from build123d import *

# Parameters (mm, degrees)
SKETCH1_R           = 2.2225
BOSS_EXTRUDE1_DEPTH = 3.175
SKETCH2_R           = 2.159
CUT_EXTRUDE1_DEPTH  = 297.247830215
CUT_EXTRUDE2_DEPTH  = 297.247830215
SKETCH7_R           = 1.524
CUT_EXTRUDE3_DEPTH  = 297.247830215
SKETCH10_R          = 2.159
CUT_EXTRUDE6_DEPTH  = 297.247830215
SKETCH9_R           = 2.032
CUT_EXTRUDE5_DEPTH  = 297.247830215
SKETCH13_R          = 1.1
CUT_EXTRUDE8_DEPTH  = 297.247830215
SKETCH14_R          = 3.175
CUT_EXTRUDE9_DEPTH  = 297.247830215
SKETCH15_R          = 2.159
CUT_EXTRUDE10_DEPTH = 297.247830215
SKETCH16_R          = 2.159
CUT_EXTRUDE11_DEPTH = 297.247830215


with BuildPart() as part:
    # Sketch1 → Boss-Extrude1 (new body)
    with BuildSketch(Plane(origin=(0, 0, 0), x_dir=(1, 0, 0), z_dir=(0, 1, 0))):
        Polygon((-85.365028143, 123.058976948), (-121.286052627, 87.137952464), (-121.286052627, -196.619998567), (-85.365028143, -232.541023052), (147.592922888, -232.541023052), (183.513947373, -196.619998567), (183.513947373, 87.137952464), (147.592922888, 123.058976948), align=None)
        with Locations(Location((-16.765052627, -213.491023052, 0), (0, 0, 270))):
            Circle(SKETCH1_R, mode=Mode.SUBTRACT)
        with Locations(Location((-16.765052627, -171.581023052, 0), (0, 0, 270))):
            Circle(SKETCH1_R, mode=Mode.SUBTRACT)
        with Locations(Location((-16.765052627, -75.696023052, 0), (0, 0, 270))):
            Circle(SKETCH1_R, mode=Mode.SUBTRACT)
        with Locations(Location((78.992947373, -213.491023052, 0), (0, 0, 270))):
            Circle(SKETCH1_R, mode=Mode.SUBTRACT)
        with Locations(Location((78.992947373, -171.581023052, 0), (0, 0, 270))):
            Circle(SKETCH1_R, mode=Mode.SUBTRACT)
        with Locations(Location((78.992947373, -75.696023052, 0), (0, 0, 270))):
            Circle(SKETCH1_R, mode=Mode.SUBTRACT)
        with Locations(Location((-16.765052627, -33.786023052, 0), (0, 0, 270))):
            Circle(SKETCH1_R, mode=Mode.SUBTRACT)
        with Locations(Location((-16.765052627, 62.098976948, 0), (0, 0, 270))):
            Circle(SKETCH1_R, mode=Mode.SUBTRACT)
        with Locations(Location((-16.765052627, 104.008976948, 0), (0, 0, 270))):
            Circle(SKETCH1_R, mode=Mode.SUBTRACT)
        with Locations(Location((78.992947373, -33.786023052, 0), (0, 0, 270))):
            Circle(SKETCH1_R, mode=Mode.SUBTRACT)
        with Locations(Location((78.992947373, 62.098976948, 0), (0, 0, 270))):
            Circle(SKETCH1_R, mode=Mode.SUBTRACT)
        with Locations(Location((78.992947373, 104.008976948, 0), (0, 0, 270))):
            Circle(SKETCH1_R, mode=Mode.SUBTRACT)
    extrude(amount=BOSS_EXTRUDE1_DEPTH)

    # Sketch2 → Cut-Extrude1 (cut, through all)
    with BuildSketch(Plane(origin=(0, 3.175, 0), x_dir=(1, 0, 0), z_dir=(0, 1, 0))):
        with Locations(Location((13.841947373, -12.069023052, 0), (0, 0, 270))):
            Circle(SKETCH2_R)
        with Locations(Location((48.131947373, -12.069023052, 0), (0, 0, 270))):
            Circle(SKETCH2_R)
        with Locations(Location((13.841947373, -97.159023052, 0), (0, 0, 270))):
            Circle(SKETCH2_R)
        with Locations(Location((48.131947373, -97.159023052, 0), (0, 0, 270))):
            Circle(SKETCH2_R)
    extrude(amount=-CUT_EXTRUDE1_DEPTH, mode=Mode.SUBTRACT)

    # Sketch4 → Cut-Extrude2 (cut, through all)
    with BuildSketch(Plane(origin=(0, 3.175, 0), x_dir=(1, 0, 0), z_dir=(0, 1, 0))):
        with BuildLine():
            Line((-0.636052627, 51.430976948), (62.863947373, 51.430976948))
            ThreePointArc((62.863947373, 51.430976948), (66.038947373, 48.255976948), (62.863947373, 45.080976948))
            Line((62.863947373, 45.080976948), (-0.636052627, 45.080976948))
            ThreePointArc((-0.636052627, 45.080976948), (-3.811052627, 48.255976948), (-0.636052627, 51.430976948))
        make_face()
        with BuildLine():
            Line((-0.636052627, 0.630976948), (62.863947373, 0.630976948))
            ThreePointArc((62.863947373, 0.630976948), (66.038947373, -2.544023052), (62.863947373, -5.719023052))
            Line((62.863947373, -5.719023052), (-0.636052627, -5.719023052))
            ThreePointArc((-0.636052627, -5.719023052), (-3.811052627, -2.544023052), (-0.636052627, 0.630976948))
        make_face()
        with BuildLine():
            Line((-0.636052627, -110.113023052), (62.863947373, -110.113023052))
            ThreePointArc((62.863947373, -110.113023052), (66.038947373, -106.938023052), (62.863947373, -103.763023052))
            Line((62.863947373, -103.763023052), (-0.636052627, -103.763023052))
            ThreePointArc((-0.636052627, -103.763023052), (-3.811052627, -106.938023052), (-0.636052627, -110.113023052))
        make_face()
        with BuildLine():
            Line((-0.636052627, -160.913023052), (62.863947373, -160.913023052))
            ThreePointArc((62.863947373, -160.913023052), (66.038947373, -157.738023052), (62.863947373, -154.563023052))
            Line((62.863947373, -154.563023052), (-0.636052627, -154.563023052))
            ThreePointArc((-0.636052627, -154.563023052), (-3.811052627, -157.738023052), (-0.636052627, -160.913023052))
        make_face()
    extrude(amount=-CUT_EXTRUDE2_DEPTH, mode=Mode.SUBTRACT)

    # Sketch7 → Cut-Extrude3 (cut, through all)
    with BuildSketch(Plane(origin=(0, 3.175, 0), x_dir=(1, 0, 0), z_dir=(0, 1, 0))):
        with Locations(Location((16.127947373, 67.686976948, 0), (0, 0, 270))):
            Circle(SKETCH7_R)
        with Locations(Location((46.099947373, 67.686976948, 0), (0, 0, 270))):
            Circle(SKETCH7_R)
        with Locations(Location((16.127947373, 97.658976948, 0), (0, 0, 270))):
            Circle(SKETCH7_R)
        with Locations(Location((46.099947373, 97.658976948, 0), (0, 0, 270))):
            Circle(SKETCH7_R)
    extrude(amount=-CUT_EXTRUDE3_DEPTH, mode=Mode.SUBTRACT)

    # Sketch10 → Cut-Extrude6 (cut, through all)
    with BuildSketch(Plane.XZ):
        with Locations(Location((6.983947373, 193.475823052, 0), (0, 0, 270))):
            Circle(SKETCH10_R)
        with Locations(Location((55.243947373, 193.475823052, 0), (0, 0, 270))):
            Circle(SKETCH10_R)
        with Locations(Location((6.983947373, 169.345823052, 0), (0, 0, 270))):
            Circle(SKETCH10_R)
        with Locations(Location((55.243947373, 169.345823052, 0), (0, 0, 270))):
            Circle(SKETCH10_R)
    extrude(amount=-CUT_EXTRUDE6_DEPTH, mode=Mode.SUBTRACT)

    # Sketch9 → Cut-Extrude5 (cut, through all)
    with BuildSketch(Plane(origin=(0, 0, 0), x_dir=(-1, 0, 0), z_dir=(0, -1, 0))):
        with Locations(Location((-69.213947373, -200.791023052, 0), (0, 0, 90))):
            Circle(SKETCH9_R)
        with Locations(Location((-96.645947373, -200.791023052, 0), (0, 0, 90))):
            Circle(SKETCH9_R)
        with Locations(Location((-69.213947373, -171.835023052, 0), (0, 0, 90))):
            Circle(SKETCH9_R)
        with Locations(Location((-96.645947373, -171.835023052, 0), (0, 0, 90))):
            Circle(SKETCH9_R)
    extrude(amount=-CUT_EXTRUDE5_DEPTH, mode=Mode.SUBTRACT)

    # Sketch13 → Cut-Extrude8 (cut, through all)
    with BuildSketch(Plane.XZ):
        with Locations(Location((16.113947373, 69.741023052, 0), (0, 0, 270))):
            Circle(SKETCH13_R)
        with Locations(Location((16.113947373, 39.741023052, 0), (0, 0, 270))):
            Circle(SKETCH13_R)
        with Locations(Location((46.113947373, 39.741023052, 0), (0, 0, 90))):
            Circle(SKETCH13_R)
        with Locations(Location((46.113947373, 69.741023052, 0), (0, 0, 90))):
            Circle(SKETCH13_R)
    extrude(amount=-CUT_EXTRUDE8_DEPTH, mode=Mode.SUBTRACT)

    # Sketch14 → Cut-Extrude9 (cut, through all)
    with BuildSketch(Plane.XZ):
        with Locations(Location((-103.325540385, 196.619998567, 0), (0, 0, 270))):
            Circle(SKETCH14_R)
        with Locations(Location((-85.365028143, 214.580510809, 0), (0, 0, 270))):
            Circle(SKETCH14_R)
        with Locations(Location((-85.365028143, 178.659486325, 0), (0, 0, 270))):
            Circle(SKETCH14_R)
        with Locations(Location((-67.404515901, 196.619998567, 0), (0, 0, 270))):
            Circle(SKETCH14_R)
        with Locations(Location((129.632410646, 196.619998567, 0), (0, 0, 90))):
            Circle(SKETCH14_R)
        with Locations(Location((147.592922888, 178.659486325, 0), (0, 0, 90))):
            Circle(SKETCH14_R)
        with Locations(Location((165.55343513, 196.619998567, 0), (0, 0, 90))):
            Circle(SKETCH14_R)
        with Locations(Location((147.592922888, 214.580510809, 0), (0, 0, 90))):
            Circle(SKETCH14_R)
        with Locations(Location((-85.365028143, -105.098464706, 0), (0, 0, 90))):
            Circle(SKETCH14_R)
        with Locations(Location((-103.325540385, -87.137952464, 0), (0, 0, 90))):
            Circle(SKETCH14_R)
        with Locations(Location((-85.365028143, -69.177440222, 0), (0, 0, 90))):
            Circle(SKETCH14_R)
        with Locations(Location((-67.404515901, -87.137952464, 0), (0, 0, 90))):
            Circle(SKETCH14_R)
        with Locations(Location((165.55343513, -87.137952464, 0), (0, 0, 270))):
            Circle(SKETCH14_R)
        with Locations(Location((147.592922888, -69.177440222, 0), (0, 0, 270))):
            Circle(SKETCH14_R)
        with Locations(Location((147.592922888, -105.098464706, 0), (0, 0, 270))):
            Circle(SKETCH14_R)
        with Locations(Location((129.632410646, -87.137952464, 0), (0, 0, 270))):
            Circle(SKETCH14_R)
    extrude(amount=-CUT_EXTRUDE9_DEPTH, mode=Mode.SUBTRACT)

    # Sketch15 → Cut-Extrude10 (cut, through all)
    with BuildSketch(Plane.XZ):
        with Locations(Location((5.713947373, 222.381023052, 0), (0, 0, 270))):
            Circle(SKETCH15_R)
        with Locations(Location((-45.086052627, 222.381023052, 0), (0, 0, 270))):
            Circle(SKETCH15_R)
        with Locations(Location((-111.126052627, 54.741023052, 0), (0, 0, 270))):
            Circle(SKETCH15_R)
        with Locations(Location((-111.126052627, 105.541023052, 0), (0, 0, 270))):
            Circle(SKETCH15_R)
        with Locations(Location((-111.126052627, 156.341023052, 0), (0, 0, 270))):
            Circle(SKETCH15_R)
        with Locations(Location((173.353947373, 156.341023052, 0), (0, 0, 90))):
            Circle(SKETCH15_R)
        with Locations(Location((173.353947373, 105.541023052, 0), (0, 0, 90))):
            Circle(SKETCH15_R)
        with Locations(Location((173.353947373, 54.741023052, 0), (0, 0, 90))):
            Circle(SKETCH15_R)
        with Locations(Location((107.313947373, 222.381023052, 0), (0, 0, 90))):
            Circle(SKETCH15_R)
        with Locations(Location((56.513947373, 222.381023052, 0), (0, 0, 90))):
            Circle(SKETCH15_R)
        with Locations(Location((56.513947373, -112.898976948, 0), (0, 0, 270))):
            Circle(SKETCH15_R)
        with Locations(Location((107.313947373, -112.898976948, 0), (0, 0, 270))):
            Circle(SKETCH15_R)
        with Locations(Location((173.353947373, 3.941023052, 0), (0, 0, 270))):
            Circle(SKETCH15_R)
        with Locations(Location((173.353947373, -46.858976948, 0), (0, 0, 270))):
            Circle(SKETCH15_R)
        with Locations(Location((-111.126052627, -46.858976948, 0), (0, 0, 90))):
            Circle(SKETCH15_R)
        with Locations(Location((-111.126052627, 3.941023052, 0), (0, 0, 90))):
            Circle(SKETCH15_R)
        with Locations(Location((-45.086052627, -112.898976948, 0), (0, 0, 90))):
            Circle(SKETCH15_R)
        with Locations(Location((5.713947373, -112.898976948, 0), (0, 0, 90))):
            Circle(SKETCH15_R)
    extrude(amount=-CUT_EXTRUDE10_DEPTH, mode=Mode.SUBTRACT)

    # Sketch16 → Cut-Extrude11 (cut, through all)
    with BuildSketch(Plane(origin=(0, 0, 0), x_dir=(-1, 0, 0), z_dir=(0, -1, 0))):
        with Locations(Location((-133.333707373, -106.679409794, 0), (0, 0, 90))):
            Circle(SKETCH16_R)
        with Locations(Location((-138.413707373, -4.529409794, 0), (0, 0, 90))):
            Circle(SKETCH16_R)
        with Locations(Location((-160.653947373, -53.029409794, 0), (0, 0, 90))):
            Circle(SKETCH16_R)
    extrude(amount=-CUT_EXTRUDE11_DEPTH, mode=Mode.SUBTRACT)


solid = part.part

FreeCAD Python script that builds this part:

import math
import FreeCAD as App
import Part
import Sketcher
Q = App.Units.Quantity

doc = App.newDocument("Part")
body = doc.addObject("PartDesign::Body", "Body")

sketch1 = body.newObject("Sketcher::SketchObject", "Sketch")
sketch1.AttachmentSupport = (doc.getObject("XZ_Plane"), [""])
sketch1.MapMode = "FlatFace"
sketch1.addGeometry(Part.LineSegment(App.Vector(-85.365028, -123.058977, 0), App.Vector(-121.286053, -87.137952, 0)), False)
sketch1.addGeometry(Part.LineSegment(App.Vector(-121.286053, -87.137952, 0), App.Vector(-121.286053, 196.619999, 0)), False)
sketch1.addGeometry(Part.LineSegment(App.Vector(-121.286053, 196.619999, 0), App.Vector(-85.365028, 232.541023, 0)), False)
sketch1.addGeometry(Part.LineSegment(App.Vector(-85.365028, 232.541023, 0), App.Vector(147.592923, 232.541023, 0)), False)
sketch1.addGeometry(Part.LineSegment(App.Vector(147.592923, 232.541023, 0), App.Vector(183.513947, 196.619999, 0)), False)
sketch1.addGeometry(Part.LineSegment(App.Vector(183.513947, 196.619999, 0), App.Vector(183.513947, -87.137952, 0)), False)
sketch1.addGeometry(Part.LineSegment(App.Vector(183.513947, -87.137952, 0), App.Vector(147.592923, -123.058977, 0)), False)
sketch1.addGeometry(Part.LineSegment(App.Vector(147.592923, -123.058977, 0), App.Vector(-85.365028, -123.058977, 0)), False)
sketch1.addGeometry(Part.Circle(App.Vector(-16.765053, 213.491023, 0), App.Vector(0, 0, 1), 2.2225), False)
sketch1.addGeometry(Part.Circle(App.Vector(-16.765053, 171.581023, 0), App.Vector(0, 0, 1), 2.2225), False)
sketch1.addGeometry(Part.Circle(App.Vector(-16.765053, 75.696023, 0), App.Vector(0, 0, 1), 2.2225), False)
sketch1.addGeometry(Part.Circle(App.Vector(78.992947, 213.491023, 0), App.Vector(0, 0, 1), 2.2225), False)
sketch1.addGeometry(Part.Circle(App.Vector(78.992947, 171.581023, 0), App.Vector(0, 0, 1), 2.2225), False)
sketch1.addGeometry(Part.Circle(App.Vector(78.992947, 75.696023, 0), App.Vector(0, 0, 1), 2.2225), False)
sketch1.addGeometry(Part.Circle(App.Vector(-16.765053, 33.786023, 0), App.Vector(0, 0, 1), 2.2225), False)
sketch1.addGeometry(Part.Circle(App.Vector(-16.765053, -62.098977, 0), App.Vector(0, 0, 1), 2.2225), False)
sketch1.addGeometry(Part.Circle(App.Vector(-16.765053, -104.008977, 0), App.Vector(0, 0, 1), 2.2225), False)
sketch1.addGeometry(Part.Circle(App.Vector(78.992947, 33.786023, 0), App.Vector(0, 0, 1), 2.2225), False)
sketch1.addGeometry(Part.Circle(App.Vector(78.992947, -62.098977, 0), App.Vector(0, 0, 1), 2.2225), False)
sketch1.addGeometry(Part.Circle(App.Vector(78.992947, -104.008977, 0), App.Vector(0, 0, 1), 2.2225), False)
sketch1.addConstraint(Sketcher.Constraint("Coincident", 0, 2, 1, 1))
sketch1.addConstraint(Sketcher.Constraint("Coincident", 1, 2, 2, 1))
sketch1.addConstraint(Sketcher.Constraint("Coincident", 2, 2, 3, 1))
sketch1.addConstraint(Sketcher.Constraint("Coincident", 3, 2, 4, 1))
sketch1.addConstraint(Sketcher.Constraint("Coincident", 4, 2, 5, 1))
sketch1.addConstraint(Sketcher.Constraint("Coincident", 5, 2, 6, 1))
sketch1.addConstraint(Sketcher.Constraint("Coincident", 6, 2, 7, 1))
sketch1.addConstraint(Sketcher.Constraint("Coincident", 7, 2, 0, 1))
sketch1.addConstraint(Sketcher.Constraint("Vertical", 1))
sketch1.addConstraint(Sketcher.Constraint("Horizontal", 3))
sketch1.addConstraint(Sketcher.Constraint("Vertical", 5))
sketch1.addConstraint(Sketcher.Constraint("Horizontal", 7))
sketch1.addConstraint(Sketcher.Constraint("Equal", 8, 9))
sketch1.addConstraint(Sketcher.Constraint("Equal", 9, 10))
sketch1.addConstraint(Sketcher.Constraint("Equal", 10, 11))
sketch1.addConstraint(Sketcher.Constraint("Equal", 11, 12))
sketch1.addConstraint(Sketcher.Constraint("Equal", 12, 13))
sketch1.addConstraint(Sketcher.Constraint("Equal", 13, 14))
sketch1.addConstraint(Sketcher.Constraint("Equal", 14, 15))
sketch1.addConstraint(Sketcher.Constraint("Equal", 15, 16))
sketch1.addConstraint(Sketcher.Constraint("Equal", 16, 17))
sketch1.addConstraint(Sketcher.Constraint("Equal", 17, 18))
sketch1.addConstraint(Sketcher.Constraint("Equal", 18, 19))
sketch1.addConstraint(Sketcher.Constraint("Perpendicular", 0, 2))
sketch1.addConstraint(Sketcher.Constraint("Perpendicular", 2, 4))
sketch1.addConstraint(Sketcher.Constraint("Perpendicular", 4, 6))
sketch1.addConstraint(Sketcher.Constraint("Horizontal", 8, 3, 11, 3))
sketch1.addConstraint(Sketcher.Constraint("Horizontal", 9, 3, 12, 3))
sketch1.addConstraint(Sketcher.Constraint("Horizontal", 10, 3, 13, 3))
sketch1.addConstraint(Sketcher.Constraint("Horizontal", 14, 3, 17, 3))
sketch1.addConstraint(Sketcher.Constraint("Horizontal", 15, 3, 18, 3))
sketch1.addConstraint(Sketcher.Constraint("Horizontal", 16, 3, 19, 3))
sketch1.addConstraint(Sketcher.Constraint("Horizontal", 1, 2, 4, 2))
sketch1.addConstraint(Sketcher.Constraint("Horizontal", 0, 2, 5, 2))
sketch1.addConstraint(Sketcher.Constraint("Vertical", 8, 3, 9, 3))
sketch1.addConstraint(Sketcher.Constraint("Vertical", 9, 3, 10, 3))
sketch1.addConstraint(Sketcher.Constraint("Vertical", 11, 3, 12, 3))
sketch1.addConstraint(Sketcher.Constraint("Vertical", 12, 3, 13, 3))
sketch1.addConstraint(Sketcher.Constraint("Vertical", 10, 3, 14, 3))
sketch1.addConstraint(Sketcher.Constraint("Vertical", 14, 3, 15, 3))
sketch1.addConstraint(Sketcher.Constraint("Vertical", 15, 3, 16, 3))
sketch1.addConstraint(Sketcher.Constraint("Vertical", 13, 3, 17, 3))
sketch1.addConstraint(Sketcher.Constraint("Vertical", 17, 3, 18, 3))
sketch1.addConstraint(Sketcher.Constraint("Vertical", 18, 3, 19, 3))
sketch1.addConstraint(Sketcher.Constraint("Vertical", 3, 2, 6, 2))
sketch1.addConstraint(Sketcher.Constraint("Vertical", 2, 2, 7, 2))
sketch1.addConstraint(Sketcher.Constraint("Distance", 0, Q("2 in")))
sketch1.addConstraint(Sketcher.Constraint("Diameter", 8, Q("0.175 in")))
sketch1.addConstraint(Sketcher.Constraint("DistanceY", 15, 3, 9, 3, Q("9.2 in")))
sketch1.addConstraint(Sketcher.Constraint("DistanceY", 9, 3, 2, 2, Q("2.4 in")))
sketch1.addConstraint(Sketcher.Constraint("DistanceY", 6, 2, 18, 3, Q("2.4 in")))
sketch1.addConstraint(Sketcher.Constraint("DistanceY", 9, 3, 8, 3, Q("1.65 in")))
sketch1.addConstraint(Sketcher.Constraint("DistanceX", 8, 3, 11, 3, Q("3.77 in")))
sketch1.addConstraint(Sketcher.Constraint("DistanceY", 14, 3, 10, 3, Q("1.65 in")))
sketch1.addConstraint(Sketcher.Constraint("DistanceY", 16, 3, 15, 3, Q("1.65 in")))
sketch1.addConstraint(Sketcher.Constraint("DistanceY", 10, 3, 9, 3, Q("3.775 in")))
sketch1.addConstraint(Sketcher.Constraint("DistanceX", 0, 2, 16, 3, Q("4.115 in")))
sketch1.addConstraint(Sketcher.Constraint("DistanceX", 11, 3, 4, 2, Q("4.115 in")))
sketch1.addConstraint(Sketcher.Constraint("DistanceY", -1, 1, 1, 2, Q("196.619999 mm")))
sketch1.addConstraint(Sketcher.Constraint("DistanceX", 2, 2, -1, 1, Q("85.365028 mm")))
pad1 = body.newObject("PartDesign::Pad", "Pad")
pad1.Profile = sketch1
pad1.Length = Q("0.125 in")
pad1.Reversed = True

sketch2 = body.newObject("Sketcher::SketchObject", "Sketch001")
sketch2.AttachmentSupport = (doc.getObject("XZ_Plane"), [""])
sketch2.MapMode = "FlatFace"
sketch2.AttachmentOffset = App.Placement(App.Vector(0, 0, -0.125 * 25.4), App.Rotation())
sketch2.addGeometry(Part.Circle(App.Vector(13.841947, 12.069023, 0), App.Vector(0, 0, 1), 2.159), False)
sketch2.addGeometry(Part.Circle(App.Vector(48.131947, 12.069023, 0), App.Vector(0, 0, 1), 2.159), False)
sketch2.addGeometry(Part.Circle(App.Vector(13.841947, 97.159023, 0), App.Vector(0, 0, 1), 2.159), False)
sketch2.addGeometry(Part.Circle(App.Vector(48.131947, 97.159023, 0), App.Vector(0, 0, 1), 2.159), False)
sketch2.addConstraint(Sketcher.Constraint("Equal", 0, 1))
sketch2.addConstraint(Sketcher.Constraint("Equal", 1, 2))
sketch2.addConstraint(Sketcher.Constraint("Equal", 2, 3))
sketch2.addConstraint(Sketcher.Constraint("Horizontal", 0, 3, 1, 3))
sketch2.addConstraint(Sketcher.Constraint("Horizontal", 2, 3, 3, 3))
sketch2.addConstraint(Sketcher.Constraint("Vertical", 0, 3, 2, 3))
sketch2.addConstraint(Sketcher.Constraint("Vertical", 1, 3, 3, 3))
sketch2.addConstraint(Sketcher.Constraint("Diameter", 0, Q("0.17 in")))
sketch2.addConstraint(Sketcher.Constraint("DistanceX", 0, 3, 1, 3, Q("1.35 in")))
sketch2.addConstraint(Sketcher.Constraint("DistanceY", 0, 3, 2, 3, Q("3.35 in")))
sketch2.addConstraint(Sketcher.Constraint("DistanceX", -1, 1, 0, 3, Q("13.841947 mm")))
sketch2.addConstraint(Sketcher.Constraint("DistanceY", -1, 1, 0, 3, Q("12.069023 mm")))
pocket1 = body.newObject("PartDesign::Pocket", "Pocket")
pocket1.Profile = sketch2
pocket1.Type = "ThroughAll"
pocket1.Reversed = True

sketch3 = body.newObject("Sketcher::SketchObject", "Sketch002")
sketch3.AttachmentSupport = (doc.getObject("XZ_Plane"), [""])
sketch3.MapMode = "FlatFace"
sketch3.AttachmentOffset = App.Placement(App.Vector(0, 0, -0.125 * 25.4), App.Rotation())
sketch3.addGeometry(Part.LineSegment(App.Vector(62.863947, -51.430977, 0), App.Vector(-0.636053, -51.430977, 0)), False)
sketch3.addGeometry(Part.ArcOfCircle(Part.Circle(App.Vector(-0.636053, -48.255977, 0), App.Vector(0, 0, 1), 3.175), math.radians(90), math.radians(270)), False)
sketch3.addGeometry(Part.LineSegment(App.Vector(-0.636053, -45.080977, 0), App.Vector(62.863947, -45.080977, 0)), False)
sketch3.addGeometry(Part.ArcOfCircle(Part.Circle(App.Vector(62.863947, -48.255977, 0), App.Vector(0, 0, 1), 3.175), math.radians(-90), math.radians(90)), False)
sketch3.addGeometry(Part.LineSegment(App.Vector(62.863947, -0.630977, 0), App.Vector(-0.636053, -0.630977, 0)), False)
sketch3.addGeometry(Part.ArcOfCircle(Part.Circle(App.Vector(-0.636053, 2.544023, 0), App.Vector(0, 0, 1), 3.175), math.radians(90), math.radians(270)), False)
sketch3.addGeometry(Part.LineSegment(App.Vector(-0.636053, 5.719023, 0), App.Vector(62.863947, 5.719023, 0)), False)
sketch3.addGeometry(Part.ArcOfCircle(Part.Circle(App.Vector(62.863947, 2.544023, 0), App.Vector(0, 0, 1), 3.175), math.radians(-90), math.radians(90)), False)
sketch3.addGeometry(Part.LineSegment(App.Vector(-0.636053, 110.113023, 0), App.Vector(62.863947, 110.113023, 0)), False)
sketch3.addGeometry(Part.ArcOfCircle(Part.Circle(App.Vector(62.863947, 106.938023, 0), App.Vector(0, 0, 1), 3.175), math.radians(-90), math.radians(90)), False)
sketch3.addGeometry(Part.LineSegment(App.Vector(62.863947, 103.763023, 0), App.Vector(-0.636053, 103.763023, 0)), False)
sketch3.addGeometry(Part.ArcOfCircle(Part.Circle(App.Vector(-0.636053, 106.938023, 0), App.Vector(0, 0, 1), 3.175), math.radians(90), math.radians(270)), False)
sketch3.addGeometry(Part.LineSegment(App.Vector(-0.636053, 160.913023, 0), App.Vector(62.863947, 160.913023, 0)), False)
sketch3.addGeometry(Part.ArcOfCircle(Part.Circle(App.Vector(62.863947, 157.738023, 0), App.Vector(0, 0, 1), 3.175), math.radians(-90), math.radians(90)), False)
sketch3.addGeometry(Part.LineSegment(App.Vector(62.863947, 154.563023, 0), App.Vector(-0.636053, 154.563023, 0)), False)
sketch3.addGeometry(Part.ArcOfCircle(Part.Circle(App.Vector(-0.636053, 157.738023, 0), App.Vector(0, 0, 1), 3.175), math.radians(90), math.radians(270)), False)
sketch3.addConstraint(Sketcher.Constraint("Tangent", 0, 2, 1, 2))
sketch3.addConstraint(Sketcher.Constraint("Tangent", 1, 1, 2, 1))
sketch3.addConstraint(Sketcher.Constraint("Tangent", 2, 2, 3, 2))
sketch3.addConstraint(Sketcher.Constraint("Tangent", 3, 1, 0, 1))
sketch3.addConstraint(Sketcher.Constraint("Tangent", 4, 2, 5, 2))
sketch3.addConstraint(Sketcher.Constraint("Tangent", 5, 1, 6, 1))
sketch3.addConstraint(Sketcher.Constraint("Tangent", 6, 2, 7, 2))
sketch3.addConstraint(Sketcher.Constraint("Tangent", 7, 1, 4, 1))
sketch3.addConstraint(Sketcher.Constraint("Tangent", 8, 2, 9, 2))
sketch3.addConstraint(Sketcher.Constraint("Tangent", 9, 1, 10, 1))
sketch3.addConstraint(Sketcher.Constraint("Tangent", 10, 2, 11, 2))
sketch3.addConstraint(Sketcher.Constraint("Tangent", 11, 1, 8, 1))
sketch3.addConstraint(Sketcher.Constraint("Tangent", 12, 2, 13, 2))
sketch3.addConstraint(Sketcher.Constraint("Tangent", 13, 1, 14, 1))
sketch3.addConstraint(Sketcher.Constraint("Tangent", 14, 2, 15, 2))
sketch3.addConstraint(Sketcher.Constraint("Tangent", 15, 1, 12, 1))
sketch3.addConstraint(Sketcher.Constraint("Horizontal", 0))
sketch3.addConstraint(Sketcher.Constraint("Horizontal", 2))
sketch3.addConstraint(Sketcher.Constraint("Horizontal", 4))
sketch3.addConstraint(Sketcher.Constraint("Horizontal", 6))
sketch3.addConstraint(Sketcher.Constraint("Horizontal", 8))
sketch3.addConstraint(Sketcher.Constraint("Horizontal", 10))
sketch3.addConstraint(Sketcher.Constraint("Horizontal", 12))
sketch3.addConstraint(Sketcher.Constraint("Horizontal", 14))
sketch3.addConstraint(Sketcher.Constraint("Equal", 3, 5))
sketch3.addConstraint(Sketcher.Constraint("Equal", 7, 9))
sketch3.addConstraint(Sketcher.Constraint("Equal", 11, 13))
sketch3.addConstraint(Sketcher.Constraint("Vertical", 1, 3, 5, 3))
sketch3.addConstraint(Sketcher.Constraint("Vertical", 3, 3, 7, 3))
sketch3.addConstraint(Sketcher.Constraint("Vertical", 7, 3, 9, 3))
sketch3.addConstraint(Sketcher.Constraint("Vertical", 5, 3, 11, 3))
sketch3.addConstraint(Sketcher.Constraint("Vertical", 9, 3, 13, 3))
sketch3.addConstraint(Sketcher.Constraint("Vertical", 11, 3, 15, 3))
sketch3.addConstraint(Sketcher.Constraint("DistanceX", 0, 2, 0, 1, Q("2.5 in")))
sketch3.addConstraint(Sketcher.Constraint("Radius", 1, Q("0.125 in")))
sketch3.addConstraint(Sketcher.Constraint("DistanceY", 1, 3, 5, 3, Q("2 in")))
sketch3.addConstraint(Sketcher.Constraint("DistanceY", 9, 3, 13, 3, Q("2 in")))
sketch3.addConstraint(Sketcher.Constraint("DistanceY", 7, 3, 9, 3, Q("4.11 in")))
sketch3.addConstraint(Sketcher.Constraint("DistanceX", 1, 3, -1, 1, Q("0.636053 mm")))
sketch3.addConstraint(Sketcher.Constraint("DistanceY", 1, 3, -1, 1, Q("48.255977 mm")))
pocket2 = body.newObject("PartDesign::Pocket", "Pocket001")
pocket2.Profile = sketch3
pocket2.Type = "ThroughAll"
pocket2.Reversed = True

sketch4 = body.newObject("Sketcher::SketchObject", "Sketch003")
sketch4.AttachmentSupport = (doc.getObject("XZ_Plane"), [""])
sketch4.MapMode = "FlatFace"
sketch4.AttachmentOffset = App.Placement(App.Vector(0, 0, -0.125 * 25.4), App.Rotation())
sketch4.addGeometry(Part.Circle(App.Vector(16.127947, -67.686977, 0), App.Vector(0, 0, 1), 1.524), False)
sketch4.addGeometry(Part.Circle(App.Vector(46.099947, -67.686977, 0), App.Vector(0, 0, 1), 1.524), False)
sketch4.addGeometry(Part.Circle(App.Vector(16.127947, -97.658977, 0), App.Vector(0, 0, 1), 1.524), False)
sketch4.addGeometry(Part.Circle(App.Vector(46.099947, -97.658977, 0), App.Vector(0, 0, 1), 1.524), False)
sketch4.addConstraint(Sketcher.Constraint("Equal", 0, 1))
sketch4.addConstraint(Sketcher.Constraint("Equal", 1, 2))
sketch4.addConstraint(Sketcher.Constraint("Equal", 2, 3))
sketch4.addConstraint(Sketcher.Constraint("Horizontal", 0, 3, 1, 3))
sketch4.addConstraint(Sketcher.Constraint("Horizontal", 2, 3, 3, 3))
sketch4.addConstraint(Sketcher.Constraint("Vertical", 0, 3, 2, 3))
sketch4.addConstraint(Sketcher.Constraint("Vertical", 1, 3, 3, 3))
sketch4.addConstraint(Sketcher.Constraint("Diameter", 0, Q("0.12 in")))
sketch4.addConstraint(Sketcher.Constraint("DistanceX", 0, 3, 1, 3, Q("1.18 in")))
sketch4.addConstraint(Sketcher.Constraint("DistanceY", 2, 3, 0, 3, Q("1.18 in")))
sketch4.addConstraint(Sketcher.Constraint("DistanceX", -1, 1, 0, 3, Q("16.127947 mm")))
sketch4.addConstraint(Sketcher.Constraint("DistanceY", 0, 3, -1, 1, Q("67.686977 mm")))
pocket3 = body.newObject("PartDesign::Pocket", "Pocket002")
pocket3.Profile = sketch4
pocket3.Type = "ThroughAll"
pocket3.Reversed = True

sketch5 = body.newObject("Sketcher::SketchObject", "Sketch004")
sketch5.AttachmentSupport = (doc.getObject("XZ_Plane"), [""])
sketch5.MapMode = "FlatFace"
sketch5.addGeometry(Part.Circle(App.Vector(6.983947, 193.475823, 0), App.Vector(0, 0, 1), 2.159), False)
sketch5.addGeometry(Part.Circle(App.Vector(55.243947, 193.475823, 0), App.Vector(0, 0, 1), 2.159), False)
sketch5.addGeometry(Part.Circle(App.Vector(6.983947, 169.345823, 0), App.Vector(0, 0, 1), 2.159), False)
sketch5.addGeometry(Part.Circle(App.Vector(55.243947, 169.345823, 0), App.Vector(0, 0, 1), 2.159), False)
sketch5.addConstraint(Sketcher.Constraint("Equal", 0, 1))
sketch5.addConstraint(Sketcher.Constraint("Equal", 1, 2))
sketch5.addConstraint(Sketcher.Constraint("Equal", 2, 3))
sketch5.addConstraint(Sketcher.Constraint("Horizontal", 0, 3, 1, 3))
sketch5.addConstraint(Sketcher.Constraint("Horizontal", 2, 3, 3, 3))
sketch5.addConstraint(Sketcher.Constraint("Vertical", 0, 3, 2, 3))
sketch5.addConstraint(Sketcher.Constraint("Vertical", 1, 3, 3, 3))
sketch5.addConstraint(Sketcher.Constraint("Diameter", 0, Q("0.17 in")))
sketch5.addConstraint(Sketcher.Constraint("DistanceX", 0, 3, 1, 3, Q("1.9 in")))
sketch5.addConstraint(Sketcher.Constraint("DistanceY", 2, 3, 0, 3, Q("0.95 in")))
sketch5.addConstraint(Sketcher.Constraint("DistanceX", -1, 1, 0, 3, Q("6.983947 mm")))
sketch5.addConstraint(Sketcher.Constraint("DistanceY", -1, 1, 0, 3, Q("193.475823 mm")))
pocket4 = body.newObject("PartDesign::Pocket", "Pocket003")
pocket4.Profile = sketch5
pocket4.Type = "ThroughAll"

sketch6 = body.newObject("Sketcher::SketchObject", "Sketch005")
sketch6.AttachmentSupport = (doc.getObject("XZ_Plane"), [""])
sketch6.MapMode = "FlatFace"
sketch6.addGeometry(Part.Circle(App.Vector(69.213947, 200.791023, 0), App.Vector(0, 0, 1), 2.032), False)
sketch6.addGeometry(Part.Circle(App.Vector(96.645947, 200.791023, 0), App.Vector(0, 0, 1), 2.032), False)
sketch6.addGeometry(Part.Circle(App.Vector(69.213947, 171.835023, 0), App.Vector(0, 0, 1), 2.032), False)
sketch6.addGeometry(Part.Circle(App.Vector(96.645947, 171.835023, 0), App.Vector(0, 0, 1), 2.032), False)
sketch6.addConstraint(Sketcher.Constraint("Equal", 0, 1))
sketch6.addConstraint(Sketcher.Constraint("Equal", 1, 2))
sketch6.addConstraint(Sketcher.Constraint("Equal", 2, 3))
sketch6.addConstraint(Sketcher.Constraint("Horizontal", 0, 3, 1, 3))
sketch6.addConstraint(Sketcher.Constraint("Horizontal", 2, 3, 3, 3))
sketch6.addConstraint(Sketcher.Constraint("Vertical", 0, 3, 2, 3))
sketch6.addConstraint(Sketcher.Constraint("Vertical", 1, 3, 3, 3))
sketch6.addConstraint(Sketcher.Constraint("Diameter", 0, Q("0.16 in")))
sketch6.addConstraint(Sketcher.Constraint("DistanceX", 0, 3, 1, 3, Q("1.08 in")))
sketch6.addConstraint(Sketcher.Constraint("DistanceY", 2, 3, 0, 3, Q("1.14 in")))
sketch6.addConstraint(Sketcher.Constraint("DistanceX", -1, 1, 0, 3, Q("69.213947 mm")))
sketch6.addConstraint(Sketcher.Constraint("DistanceY", -1, 1, 0, 3, Q("200.791023 mm")))
pocket5 = body.newObject("PartDesign::Pocket", "Pocket004")
pocket5.Profile = sketch6
pocket5.Type = "ThroughAll"

sketch7 = body.newObject("Sketcher::SketchObject", "Sketch006")
sketch7.AttachmentSupport = (doc.getObject("XZ_Plane"), [""])
sketch7.MapMode = "FlatFace"
sketch7.addGeometry(Part.Circle(App.Vector(16.113947, 69.741023, 0), App.Vector(0, 0, 1), 1.1), False)
sketch7.addGeometry(Part.Circle(App.Vector(16.113947, 39.741023, 0), App.Vector(0, 0, 1), 1.1), False)
sketch7.addGeometry(Part.Circle(App.Vector(46.113947, 39.741023, 0), App.Vector(0, 0, 1), 1.1), False)
sketch7.addGeometry(Part.Circle(App.Vector(46.113947, 69.741023, 0), App.Vector(0, 0, 1), 1.1), False)
sketch7.addConstraint(Sketcher.Constraint("Equal", 0, 1))
sketch7.addConstraint(Sketcher.Constraint("Equal", 1, 2))
sketch7.addConstraint(Sketcher.Constraint("Equal", 2, 3))
sketch7.addConstraint(Sketcher.Constraint("Horizontal", 1, 3, 2, 3))
sketch7.addConstraint(Sketcher.Constraint("Horizontal", 0, 3, 3, 3))
sketch7.addConstraint(Sketcher.Constraint("Vertical", 0, 3, 1, 3))
sketch7.addConstraint(Sketcher.Constraint("Vertical", 2, 3, 3, 3))
sketch7.addConstraint(Sketcher.Constraint("Diameter", 0, Q("2.2 mm")))
sketch7.addConstraint(Sketcher.Constraint("DistanceY", 1, 3, 0, 3, Q("30 mm")))
sketch7.addConstraint(Sketcher.Constraint("DistanceX", 1, 3, 2, 3, Q("30 mm")))
sketch7.addConstraint(Sketcher.Constraint("DistanceX", -1, 1, 0, 3, Q("16.113947 mm")))
sketch7.addConstraint(Sketcher.Constraint("DistanceY", -1, 1, 0, 3, Q("69.741023 mm")))
pocket6 = body.newObject("PartDesign::Pocket", "Pocket005")
pocket6.Profile = sketch7
pocket6.Type = "ThroughAll"

sketch8 = body.newObject("Sketcher::SketchObject", "Sketch007")
sketch8.AttachmentSupport = (doc.getObject("XZ_Plane"), [""])
sketch8.MapMode = "FlatFace"
sketch8.addGeometry(Part.Circle(App.Vector(-103.32554, 196.619999, 0), App.Vector(0, 0, 1), 3.175), False)
sketch8.addGeometry(Part.Circle(App.Vector(-85.365028, 214.580511, 0), App.Vector(0, 0, 1), 3.175), False)
sketch8.addGeometry(Part.Circle(App.Vector(-85.365028, 178.659486, 0), App.Vector(0, 0, 1), 3.175), False)
sketch8.addGeometry(Part.Circle(App.Vector(-67.404516, 196.619999, 0), App.Vector(0, 0, 1), 3.175), False)
sketch8.addGeometry(Part.Circle(App.Vector(129.632411, 196.619999, 0), App.Vector(0, 0, 1), 3.175), False)
sketch8.addGeometry(Part.Circle(App.Vector(147.592923, 178.659486, 0), App.Vector(0, 0, 1), 3.175), False)
sketch8.addGeometry(Part.Circle(App.Vector(165.553435, 196.619999, 0), App.Vector(0, 0, 1), 3.175), False)
sketch8.addGeometry(Part.Circle(App.Vector(147.592923, 214.580511, 0), App.Vector(0, 0, 1), 3.175), False)
sketch8.addGeometry(Part.Circle(App.Vector(-85.365028, -105.098465, 0), App.Vector(0, 0, 1), 3.175), False)
sketch8.addGeometry(Part.Circle(App.Vector(-103.32554, -87.137952, 0), App.Vector(0, 0, 1), 3.175), False)
sketch8.addGeometry(Part.Circle(App.Vector(-85.365028, -69.17744, 0), App.Vector(0, 0, 1), 3.175), False)
sketch8.addGeometry(Part.Circle(App.Vector(-67.404516, -87.137952, 0), App.Vector(0, 0, 1), 3.175), False)
sketch8.addGeometry(Part.Circle(App.Vector(165.553435, -87.137952, 0), App.Vector(0, 0, 1), 3.175), False)
sketch8.addGeometry(Part.Circle(App.Vector(147.592923, -69.17744, 0), App.Vector(0, 0, 1), 3.175), False)
sketch8.addGeometry(Part.Circle(App.Vector(147.592923, -105.098465, 0), App.Vector(0, 0, 1), 3.175), False)
sketch8.addGeometry(Part.Circle(App.Vector(129.632411, -87.137952, 0), App.Vector(0, 0, 1), 3.175), False)
sketch8.addConstraint(Sketcher.Constraint("Equal", 0, 1))
sketch8.addConstraint(Sketcher.Constraint("Equal", 1, 2))
sketch8.addConstraint(Sketcher.Constraint("Equal", 2, 3))
sketch8.addConstraint(Sketcher.Constraint("Equal", 3, 4))
sketch8.addConstraint(Sketcher.Constraint("Equal", 4, 5))
sketch8.addConstraint(Sketcher.Constraint("Equal", 5, 6))
sketch8.addConstraint(Sketcher.Constraint("Equal", 6, 7))
sketch8.addConstraint(Sketcher.Constraint("Equal", 7, 8))
sketch8.addConstraint(Sketcher.Constraint("Equal", 8, 9))
sketch8.addConstraint(Sketcher.Constraint("Equal", 9, 10))
sketch8.addConstraint(Sketcher.Constraint("Equal", 10, 11))
sketch8.addConstraint(Sketcher.Constraint("Equal", 11, 12))
sketch8.addConstraint(Sketcher.Constraint("Equal", 12, 13))
sketch8.addConstraint(Sketcher.Constraint("Equal", 13, 14))
sketch8.addConstraint(Sketcher.Constraint("Equal", 14, 15))
sketch8.addConstraint(Sketcher.Constraint("Horizontal", 0, 3, 3, 3))
sketch8.addConstraint(Sketcher.Constraint("Horizontal", 3, 3, 4, 3))
sketch8.addConstraint(Sketcher.Constraint("Horizontal", 2, 3, 5, 3))
sketch8.addConstraint(Sketcher.Constraint("Horizontal", 4, 3, 6, 3))
sketch8.addConstraint(Sketcher.Constraint("Horizontal", 1, 3, 7, 3))
sketch8.addConstraint(Sketcher.Constraint("Horizontal", 9, 3, 11, 3))
sketch8.addConstraint(Sketcher.Constraint("Horizontal", 11, 3, 12, 3))
sketch8.addConstraint(Sketcher.Constraint("Horizontal", 10, 3, 13, 3))
sketch8.addConstraint(Sketcher.Constraint("Horizontal", 8, 3, 14, 3))
sketch8.addConstraint(Sketcher.Constraint("Horizontal", 12, 3, 15, 3))
sketch8.addConstraint(Sketcher.Constraint("Vertical", 1, 3, 2, 3))
sketch8.addConstraint(Sketcher.Constraint("Vertical", 5, 3, 7, 3))
sketch8.addConstraint(Sketcher.Constraint("Vertical", 2, 3, 8, 3))
sketch8.addConstraint(Sketcher.Constraint("Vertical", 0, 3, 9, 3))
sketch8.addConstraint(Sketcher.Constraint("Vertical", 8, 3, 10, 3))
sketch8.addConstraint(Sketcher.Constraint("Vertical", 3, 3, 11, 3))
sketch8.addConstraint(Sketcher.Constraint("Vertical", 6, 3, 12, 3))
sketch8.addConstraint(Sketcher.Constraint("Vertical", 7, 3, 13, 3))
sketch8.addConstraint(Sketcher.Constraint("Vertical", 13, 3, 14, 3))
sketch8.addConstraint(Sketcher.Constraint("Vertical", 4, 3, 15, 3))
sketch8.addConstraint(Sketcher.Constraint("Diameter", 0, Q("0.25 in")))
sketch8.addConstraint(Sketcher.Constraint("DistanceY", -1, 1, 0, 3, Q("196.619999 mm")))
sketch8.addConstraint(Sketcher.Constraint("DistanceX", 0, 3, -1, 1, Q("103.32554 mm")))
sketch8.addConstraint(Sketcher.Constraint("DistanceX", 1, 3, -1, 1, Q("85.365028 mm")))
sketch8.addConstraint(Sketcher.Constraint("DistanceY", -1, 1, 1, 3, Q("214.580511 mm")))
sketch8.addConstraint(Sketcher.Constraint("DistanceX", -1, 1, 4, 3, Q("129.632411 mm")))
sketch8.addConstraint(Sketcher.Constraint("DistanceY", 10, 3, -1, 1, Q("69.17744 mm")))
sketch8.addConstraint(Sketcher.Constraint("DistanceX", 3, 3, 5, 3, Q("214.997439 mm")))
sketch8.addConstraint(Sketcher.Constraint("DistanceX", 2, 3, 5, 3, Q("232.957951 mm")))
sketch8.addConstraint(Sketcher.Constraint("DistanceX", 3, 3, 6, 3, Q("232.957951 mm")))
sketch8.addConstraint(Sketcher.Constraint("DistanceY", 8, 3, 2, 3, Q("283.757951 mm")))
sketch8.addConstraint(Sketcher.Constraint("DistanceY", 9, 3, 2, 3, Q("265.797439 mm")))
sketch8.addConstraint(Sketcher.Constraint("DistanceY", 9, 3, 0, 3, Q("283.757951 mm")))
pocket7 = body.newObject("PartDesign::Pocket", "Pocket006")
pocket7.Profile = sketch8
pocket7.Type = "ThroughAll"

sketch9 = body.newObject("Sketcher::SketchObject", "Sketch008")
sketch9.AttachmentSupport = (doc.getObject("XZ_Plane"), [""])
sketch9.MapMode = "FlatFace"
sketch9.addGeometry(Part.Circle(App.Vector(5.713947, 222.381023, 0), App.Vector(0, 0, 1), 2.159), False)
sketch9.addGeometry(Part.Circle(App.Vector(-45.086053, 222.381023, 0), App.Vector(0, 0, 1), 2.159), False)
sketch9.addGeometry(Part.Circle(App.Vector(-111.126053, 54.741023, 0), App.Vector(0, 0, 1), 2.159), False)
sketch9.addGeometry(Part.Circle(App.Vector(-111.126053, 105.541023, 0), App.Vector(0, 0, 1), 2.159), False)
sketch9.addGeometry(Part.Circle(App.Vector(-111.126053, 156.341023, 0), App.Vector(0, 0, 1), 2.159), False)
sketch9.addGeometry(Part.Circle(App.Vector(173.353947, 156.341023, 0), App.Vector(0, 0, 1), 2.159), False)
sketch9.addGeometry(Part.Circle(App.Vector(173.353947, 105.541023, 0), App.Vector(0, 0, 1), 2.159), False)
sketch9.addGeometry(Part.Circle(App.Vector(173.353947, 54.741023, 0), App.Vector(0, 0, 1), 2.159), False)
sketch9.addGeometry(Part.Circle(App.Vector(107.313947, 222.381023, 0), App.Vector(0, 0, 1), 2.159), False)
sketch9.addGeometry(Part.Circle(App.Vector(56.513947, 222.381023, 0), App.Vector(0, 0, 1), 2.159), False)
sketch9.addGeometry(Part.Circle(App.Vector(56.513947, -112.898977, 0), App.Vector(0, 0, 1), 2.159), False)
sketch9.addGeometry(Part.Circle(App.Vector(107.313947, -112.898977, 0), App.Vector(0, 0, 1), 2.159), False)
sketch9.addGeometry(Part.Circle(App.Vector(173.353947, 3.941023, 0), App.Vector(0, 0, 1), 2.159), False)
sketch9.addGeometry(Part.Circle(App.Vector(173.353947, -46.858977, 0), App.Vector(0, 0, 1), 2.159), False)
sketch9.addGeometry(Part.Circle(App.Vector(-111.126053, -46.858977, 0), App.Vector(0, 0, 1), 2.159), False)
sketch9.addGeometry(Part.Circle(App.Vector(-111.126053, 3.941023, 0), App.Vector(0, 0, 1), 2.159), False)
sketch9.addGeometry(Part.Circle(App.Vector(-45.086053, -112.898977, 0), App.Vector(0, 0, 1), 2.159), False)
sketch9.addGeometry(Part.Circle(App.Vector(5.713947, -112.898977, 0), App.Vector(0, 0, 1), 2.159), False)
sketch9.addConstraint(Sketcher.Constraint("Equal", 0, 1))
sketch9.addConstraint(Sketcher.Constraint("Equal", 1, 2))
sketch9.addConstraint(Sketcher.Constraint("Equal", 2, 3))
sketch9.addConstraint(Sketcher.Constraint("Equal", 3, 4))
sketch9.addConstraint(Sketcher.Constraint("Equal", 4, 5))
sketch9.addConstraint(Sketcher.Constraint("Equal", 5, 6))
sketch9.addConstraint(Sketcher.Constraint("Equal", 6, 7))
sketch9.addConstraint(Sketcher.Constraint("Equal", 7, 8))
sketch9.addConstraint(Sketcher.Constraint("Equal", 8, 9))
sketch9.addConstraint(Sketcher.Constraint("Equal", 9, 10))
sketch9.addConstraint(Sketcher.Constraint("Equal", 10, 11))
sketch9.addConstraint(Sketcher.Constraint("Equal", 11, 12))
sketch9.addConstraint(Sketcher.Constraint("Equal", 12, 13))
sketch9.addConstraint(Sketcher.Constraint("Equal", 13, 14))
sketch9.addConstraint(Sketcher.Constraint("Equal", 14, 15))
sketch9.addConstraint(Sketcher.Constraint("Equal", 15, 16))
sketch9.addConstraint(Sketcher.Constraint("Equal", 16, 17))
sketch9.addConstraint(Sketcher.Constraint("Horizontal", 0, 3, 1, 3))
sketch9.addConstraint(Sketcher.Constraint("Horizontal", 4, 3, 5, 3))
sketch9.addConstraint(Sketcher.Constraint("Horizontal", 3, 3, 6, 3))
sketch9.addConstraint(Sketcher.Constraint("Horizontal", 2, 3, 7, 3))
sketch9.addConstraint(Sketcher.Constraint("Horizontal", 1, 3, 8, 3))
sketch9.addConstraint(Sketcher.Constraint("Horizontal", 8, 3, 9, 3))
sketch9.addConstraint(Sketcher.Constraint("Horizontal", 10, 3, 11, 3))
sketch9.addConstraint(Sketcher.Constraint("Horizontal", 13, 3, 14, 3))
sketch9.addConstraint(Sketcher.Constraint("Horizontal", 12, 3, 15, 3))
sketch9.addConstraint(Sketcher.Constraint("Horizontal", 11, 3, 16, 3))
sketch9.addConstraint(Sketcher.Constraint("Horizontal", 16, 3, 17, 3))
sketch9.addConstraint(Sketcher.Constraint("Vertical", 2, 3, 3, 3))
sketch9.addConstraint(Sketcher.Constraint("Vertical", 3, 3, 4, 3))
sketch9.addConstraint(Sketcher.Constraint("Vertical", 5, 3, 6, 3))
sketch9.addConstraint(Sketcher.Constraint("Vertical", 6, 3, 7, 3))
sketch9.addConstraint(Sketcher.Constraint("Vertical", 9, 3, 10, 3))
sketch9.addConstraint(Sketcher.Constraint("Vertical", 8, 3, 11, 3))
sketch9.addConstraint(Sketcher.Constraint("Vertical", 7, 3, 12, 3))
sketch9.addConstraint(Sketcher.Constraint("Vertical", 12, 3, 13, 3))
sketch9.addConstraint(Sketcher.Constraint("Vertical", 4, 3, 14, 3))
sketch9.addConstraint(Sketcher.Constraint("Vertical", 14, 3, 15, 3))
sketch9.addConstraint(Sketcher.Constraint("Vertical", 1, 3, 16, 3))
sketch9.addConstraint(Sketcher.Constraint("Vertical", 0, 3, 17, 3))
sketch9.addConstraint(Sketcher.Constraint("Diameter", 0, Q("0.17 in")))
sketch9.addConstraint(Sketcher.Constraint("DistanceX", 1, 3, 0, 3, Q("2 in")))
sketch9.addConstraint(Sketcher.Constraint("DistanceY", 2, 3, 3, 3, Q("2 in")))
sketch9.addConstraint(Sketcher.Constraint("DistanceY", 3, 3, 4, 3, Q("2 in")))
sketch9.addConstraint(Sketcher.Constraint("DistanceX", 0, 3, 8, 3, Q("4 in")))
sketch9.addConstraint(Sketcher.Constraint("DistanceX", 0, 3, 9, 3, Q("2 in")))
sketch9.addConstraint(Sketcher.Constraint("DistanceY", 12, 3, 7, 3, Q("2 in")))
sketch9.addConstraint(Sketcher.Constraint("DistanceY", 13, 3, 12, 3, Q("2 in")))
sketch9.addConstraint(Sketcher.Constraint("DistanceX", 2, 3, 1, 3, Q("2.6 in")))
sketch9.addConstraint(Sketcher.Constraint("DistanceY", 2, 3, 1, 3, Q("6.6 in")))
sketch9.addConstraint(Sketcher.Constraint("DistanceX", 0, 3, 5, 3, Q("6.6 in")))
sketch9.addConstraint(Sketcher.Constraint("DistanceY", 10, 3, 7, 3, Q("6.6 in")))
sketch9.addConstraint(Sketcher.Constraint("DistanceX", -1, 1, 0, 3, Q("5.713947 mm")))
sketch9.addConstraint(Sketcher.Constraint("DistanceY", -1, 1, 0, 3, Q("222.381023 mm")))
pocket8 = body.newObject("PartDesign::Pocket", "Pocket007")
pocket8.Profile = sketch9
pocket8.Type = "ThroughAll"

sketch10 = body.newObject("Sketcher::SketchObject", "Sketch009")
sketch10.AttachmentSupport = (doc.getObject("XZ_Plane"), [""])
sketch10.MapMode = "FlatFace"
sketch10.addGeometry(Part.Circle(App.Vector(133.333707, 106.67941, 0), App.Vector(0, 0, 1), 2.159), False)
sketch10.addGeometry(Part.Circle(App.Vector(138.413707, 4.52941, 0), App.Vector(0, 0, 1), 2.159), False)
sketch10.addGeometry(Part.Circle(App.Vector(160.653947, 53.02941, 0), App.Vector(0, 0, 1), 2.159), False)
sketch10.addConstraint(Sketcher.Constraint("Equal", 0, 1))
sketch10.addConstraint(Sketcher.Constraint("Equal", 1, 2))
sketch10.addConstraint(Sketcher.Constraint("Diameter", 0, Q("0.17 in")))
sketch10.addConstraint(Sketcher.Constraint("DistanceX", 0, 3, 1, 3, Q("0.2 in")))
sketch10.addConstraint(Sketcher.Constraint("DistanceX", 1, 3, 2, 3, Q("0.8756 in")))
sketch10.addConstraint(Sketcher.Constraint("DistanceY", 1, 3, 0, 3, Q("102.15 mm")))
sketch10.addConstraint(Sketcher.Constraint("DistanceY", 1, 3, 2, 3, Q("48.5 mm")))
sketch10.addConstraint(Sketcher.Constraint("DistanceY", -1, 1, 0, 3, Q("106.67941 mm")))
sketch10.addConstraint(Sketcher.Constraint("DistanceX", -1, 1, 0, 3, Q("133.333707 mm")))
pocket9 = body.newObject("PartDesign::Pocket", "Pocket008")
pocket9.Profile = sketch10
pocket9.Type = "ThroughAll"

doc.recompute()
